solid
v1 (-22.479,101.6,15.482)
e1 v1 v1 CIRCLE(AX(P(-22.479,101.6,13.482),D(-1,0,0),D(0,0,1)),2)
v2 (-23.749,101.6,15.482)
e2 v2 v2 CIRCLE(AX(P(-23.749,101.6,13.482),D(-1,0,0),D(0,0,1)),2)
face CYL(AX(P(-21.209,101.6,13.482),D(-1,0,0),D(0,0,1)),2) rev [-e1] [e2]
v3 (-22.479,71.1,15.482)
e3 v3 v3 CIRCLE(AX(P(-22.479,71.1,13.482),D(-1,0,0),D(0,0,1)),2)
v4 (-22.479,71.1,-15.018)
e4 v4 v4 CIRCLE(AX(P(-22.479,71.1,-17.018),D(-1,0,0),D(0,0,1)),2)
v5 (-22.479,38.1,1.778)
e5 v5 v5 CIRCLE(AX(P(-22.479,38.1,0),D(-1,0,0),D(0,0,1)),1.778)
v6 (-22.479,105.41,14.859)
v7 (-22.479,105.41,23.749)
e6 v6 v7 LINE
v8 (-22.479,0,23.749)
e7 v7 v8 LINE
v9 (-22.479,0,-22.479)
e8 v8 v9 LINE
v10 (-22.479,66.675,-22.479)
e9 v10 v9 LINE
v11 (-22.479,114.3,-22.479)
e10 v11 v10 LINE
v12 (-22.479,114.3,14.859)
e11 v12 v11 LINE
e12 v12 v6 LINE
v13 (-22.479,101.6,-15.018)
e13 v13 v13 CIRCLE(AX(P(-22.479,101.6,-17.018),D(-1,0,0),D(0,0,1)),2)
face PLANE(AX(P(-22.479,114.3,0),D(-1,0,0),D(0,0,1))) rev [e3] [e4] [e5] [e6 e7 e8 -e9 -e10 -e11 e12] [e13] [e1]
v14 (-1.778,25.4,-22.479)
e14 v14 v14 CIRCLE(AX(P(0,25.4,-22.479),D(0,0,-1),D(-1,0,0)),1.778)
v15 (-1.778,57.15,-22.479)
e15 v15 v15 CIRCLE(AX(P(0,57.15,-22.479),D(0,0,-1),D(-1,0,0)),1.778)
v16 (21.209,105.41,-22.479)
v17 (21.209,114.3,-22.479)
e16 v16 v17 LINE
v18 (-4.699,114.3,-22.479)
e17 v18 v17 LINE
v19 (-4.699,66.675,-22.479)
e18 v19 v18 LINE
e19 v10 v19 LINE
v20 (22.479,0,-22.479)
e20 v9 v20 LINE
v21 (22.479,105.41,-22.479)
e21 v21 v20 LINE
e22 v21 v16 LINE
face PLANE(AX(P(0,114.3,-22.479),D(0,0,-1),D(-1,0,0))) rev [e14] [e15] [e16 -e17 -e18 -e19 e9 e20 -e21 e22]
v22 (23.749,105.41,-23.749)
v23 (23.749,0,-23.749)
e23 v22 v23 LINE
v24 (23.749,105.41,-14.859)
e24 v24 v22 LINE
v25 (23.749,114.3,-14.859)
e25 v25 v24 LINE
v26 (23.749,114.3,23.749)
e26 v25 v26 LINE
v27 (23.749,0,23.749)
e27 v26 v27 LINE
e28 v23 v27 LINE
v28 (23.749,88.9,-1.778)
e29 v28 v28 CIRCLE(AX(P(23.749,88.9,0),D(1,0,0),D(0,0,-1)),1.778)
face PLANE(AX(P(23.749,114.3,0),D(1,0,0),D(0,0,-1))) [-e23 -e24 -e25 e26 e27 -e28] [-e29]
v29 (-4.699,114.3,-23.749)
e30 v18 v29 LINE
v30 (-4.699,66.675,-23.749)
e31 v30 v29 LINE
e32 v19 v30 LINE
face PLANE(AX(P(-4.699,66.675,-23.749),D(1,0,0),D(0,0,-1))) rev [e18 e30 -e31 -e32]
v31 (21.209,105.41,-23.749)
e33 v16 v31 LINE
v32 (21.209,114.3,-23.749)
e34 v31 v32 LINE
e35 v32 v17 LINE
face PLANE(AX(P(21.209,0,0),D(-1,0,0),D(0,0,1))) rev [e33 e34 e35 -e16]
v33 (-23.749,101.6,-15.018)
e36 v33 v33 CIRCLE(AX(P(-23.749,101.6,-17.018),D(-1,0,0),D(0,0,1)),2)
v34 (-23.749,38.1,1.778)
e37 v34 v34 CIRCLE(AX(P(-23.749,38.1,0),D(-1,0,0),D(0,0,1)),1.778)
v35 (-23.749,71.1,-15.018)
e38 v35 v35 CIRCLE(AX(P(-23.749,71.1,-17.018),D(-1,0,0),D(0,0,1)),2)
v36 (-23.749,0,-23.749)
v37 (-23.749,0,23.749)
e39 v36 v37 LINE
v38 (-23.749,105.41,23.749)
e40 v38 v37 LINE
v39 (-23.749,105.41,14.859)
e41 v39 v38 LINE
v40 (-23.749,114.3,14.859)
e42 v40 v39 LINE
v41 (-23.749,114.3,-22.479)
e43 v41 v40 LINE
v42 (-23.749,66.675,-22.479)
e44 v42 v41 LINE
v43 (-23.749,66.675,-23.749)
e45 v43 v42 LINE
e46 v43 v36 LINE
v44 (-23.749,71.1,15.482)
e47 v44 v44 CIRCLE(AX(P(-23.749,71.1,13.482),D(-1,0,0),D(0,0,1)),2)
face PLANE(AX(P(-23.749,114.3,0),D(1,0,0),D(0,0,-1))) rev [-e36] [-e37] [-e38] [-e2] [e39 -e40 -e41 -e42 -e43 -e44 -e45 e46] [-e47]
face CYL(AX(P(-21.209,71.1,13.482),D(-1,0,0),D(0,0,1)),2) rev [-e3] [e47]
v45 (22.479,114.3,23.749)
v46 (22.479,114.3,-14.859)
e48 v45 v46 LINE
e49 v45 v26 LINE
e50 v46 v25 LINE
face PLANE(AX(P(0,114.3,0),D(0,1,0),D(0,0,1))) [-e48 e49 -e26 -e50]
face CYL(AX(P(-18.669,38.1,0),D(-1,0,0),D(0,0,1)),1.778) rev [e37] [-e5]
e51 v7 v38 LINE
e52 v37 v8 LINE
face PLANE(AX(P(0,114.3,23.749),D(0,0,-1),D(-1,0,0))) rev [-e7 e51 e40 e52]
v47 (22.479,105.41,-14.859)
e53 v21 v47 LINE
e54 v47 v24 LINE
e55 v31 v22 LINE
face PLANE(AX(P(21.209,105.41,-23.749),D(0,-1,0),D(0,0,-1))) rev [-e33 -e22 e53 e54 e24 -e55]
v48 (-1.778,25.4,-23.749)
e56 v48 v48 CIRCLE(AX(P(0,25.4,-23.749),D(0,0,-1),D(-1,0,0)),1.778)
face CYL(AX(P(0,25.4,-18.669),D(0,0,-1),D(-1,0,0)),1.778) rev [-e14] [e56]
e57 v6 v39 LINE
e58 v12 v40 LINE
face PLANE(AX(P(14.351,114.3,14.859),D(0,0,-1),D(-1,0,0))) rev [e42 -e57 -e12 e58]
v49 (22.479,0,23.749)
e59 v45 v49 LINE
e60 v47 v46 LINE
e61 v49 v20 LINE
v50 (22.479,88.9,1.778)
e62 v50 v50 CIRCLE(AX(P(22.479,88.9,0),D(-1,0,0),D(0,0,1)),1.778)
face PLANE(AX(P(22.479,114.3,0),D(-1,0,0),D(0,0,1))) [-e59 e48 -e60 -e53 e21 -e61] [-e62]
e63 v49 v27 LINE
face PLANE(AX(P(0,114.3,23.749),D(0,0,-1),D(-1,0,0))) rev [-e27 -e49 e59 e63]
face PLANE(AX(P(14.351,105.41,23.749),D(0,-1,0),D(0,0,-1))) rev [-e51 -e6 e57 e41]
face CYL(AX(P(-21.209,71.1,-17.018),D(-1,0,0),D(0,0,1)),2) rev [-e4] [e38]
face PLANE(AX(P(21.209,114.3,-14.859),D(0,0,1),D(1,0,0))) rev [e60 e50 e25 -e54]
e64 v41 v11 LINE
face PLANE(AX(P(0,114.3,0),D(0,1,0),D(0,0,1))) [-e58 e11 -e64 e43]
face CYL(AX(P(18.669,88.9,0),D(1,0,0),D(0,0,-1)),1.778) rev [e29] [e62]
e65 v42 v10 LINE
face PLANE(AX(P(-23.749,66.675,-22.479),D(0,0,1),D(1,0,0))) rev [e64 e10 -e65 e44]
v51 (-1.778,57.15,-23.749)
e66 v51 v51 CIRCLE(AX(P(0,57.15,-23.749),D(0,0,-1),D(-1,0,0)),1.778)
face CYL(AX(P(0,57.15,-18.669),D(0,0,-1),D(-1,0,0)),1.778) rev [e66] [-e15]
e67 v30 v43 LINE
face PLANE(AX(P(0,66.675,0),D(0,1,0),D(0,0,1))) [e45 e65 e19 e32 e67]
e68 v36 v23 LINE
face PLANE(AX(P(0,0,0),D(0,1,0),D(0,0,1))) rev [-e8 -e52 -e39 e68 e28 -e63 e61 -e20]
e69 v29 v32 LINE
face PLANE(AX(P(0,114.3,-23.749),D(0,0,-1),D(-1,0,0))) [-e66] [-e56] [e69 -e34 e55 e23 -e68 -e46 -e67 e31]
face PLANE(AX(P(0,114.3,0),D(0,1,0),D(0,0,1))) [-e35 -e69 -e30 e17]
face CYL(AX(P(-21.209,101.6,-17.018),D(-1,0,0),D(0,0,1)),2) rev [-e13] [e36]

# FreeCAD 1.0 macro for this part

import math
import FreeCAD as App
import Part
import Sketcher
from FreeCAD import Vector
Q = App.Units.Quantity

doc = App.newDocument("Part")
body = doc.addObject("PartDesign::Body", "Body")

# Sketch on XZ plane
sketch1 = doc.addObject("Sketcher::SketchObject", "Sketch")
body.addObject(sketch1)
sketch1.AttachmentSupport = (doc.XZ_Plane, [""])
sketch1.MapMode = "FlatFace"
sketch1.addGeometry([
    Part.LineSegment(Vector(23.7, -23.7, 0), Vector(-23.7, -23.7, 0)),  # 0
    Part.LineSegment(Vector(-23.7, -23.7, 0), Vector(-23.7, 23.7, 0)),  # 1
    Part.LineSegment(Vector(-23.7, 23.7, 0), Vector(-22.5, 23.7, 0)),  # 2
    Part.LineSegment(Vector(-22.5, 23.7, 0), Vector(-22.5, -22.5, 0)),  # 3
    Part.LineSegment(Vector(-22.5, -22.5, 0), Vector(22.5, -22.5, 0)),  # 4
    Part.LineSegment(Vector(22.5, -22.5, 0), Vector(22.5, 23.7, 0)),  # 5
    Part.LineSegment(Vector(22.5, 23.7, 0), Vector(23.7, 23.7, 0)),  # 6
    Part.LineSegment(Vector(23.7, 23.7, 0), Vector(23.7, -23.7, 0)),  # 7
], False)
sketch1.addConstraint([
    Sketcher.Constraint("Coincident", 0, 2, 1, 1),
    Sketcher.Constraint("Coincident", 1, 2, 2, 1),
    Sketcher.Constraint("Coincident", 2, 2, 3, 1),
    Sketcher.Constraint("Coincident", 3, 2, 4, 1),
    Sketcher.Constraint("Coincident", 4, 2, 5, 1),
    Sketcher.Constraint("Coincident", 5, 2, 6, 1),
    Sketcher.Constraint("Coincident", 6, 2, 7, 1),
    Sketcher.Constraint("Coincident", 7, 2, 0, 1),
    Sketcher.Constraint("Horizontal", 0),
    Sketcher.Constraint("Vertical", 1),
    Sketcher.Constraint("Horizontal", 2),
    Sketcher.Constraint("Vertical", 3),
    Sketcher.Constraint("Horizontal", 4),
    Sketcher.Constraint("Vertical", 5),
    Sketcher.Constraint("Horizontal", 6),
    Sketcher.Constraint("Vertical", 7),
    Sketcher.Constraint("Symmetric", 0, 2, 6, 2, -1, 1),
    Sketcher.Constraint("Symmetric", 2, 2, 5, 2, -2),
    Sketcher.Constraint("Equal", 0, 1),
    Sketcher.Constraint("DistanceX", 0, 2, 0, 1, Q("1.87 in")),
    Sketcher.Constraint("DistanceX", 2, 1, 2, 2, Q("0.05 in")),
    Sketcher.Constraint("DistanceY", 3, 2, 3, 1, Q("1.82 in")),
])
pad1 = doc.addObject("PartDesign::Pad", "Pad")
body.addObject(pad1)
pad1.Profile = sketch1
pad1.Length = Q("4.5 in")
pad1.Reversed = True

# Sketch on XY plane
sketch2 = doc.addObject("Sketcher::SketchObject", "Sketch001")
body.addObject(sketch2)
sketch2.AttachmentSupport = (doc.XY_Plane, [""])
sketch2.MapMode = "FlatFace"
sketch2.AttachmentOffset = App.Placement(Vector(0, 0, -0.935 * 25.4), App.Rotation())
sketch2.addGeometry(Part.Circle(Vector(0, 57.1, 0), Vector(0, 0, 1), 1.8), False)
sketch2.addConstraint([
    Sketcher.Constraint("PointOnObject", 0, 3, -2),
    Sketcher.Constraint("Diameter", 0, Q("0.14 in")),
    Sketcher.Constraint("DistanceY", -1, 1, 0, 3, Q("2.25 in")),
])
pocket1 = doc.addObject("PartDesign::Pocket", "Pocket")
body.addObject(pocket1)
pocket1.Profile = sketch2
pocket1.Length = Q("0.2 in")
pocket1.Reversed = True

# Sketch on YZ plane
sketch3 = doc.addObject("Sketcher::SketchObject", "Sketch002")
body.addObject(sketch3)
sketch3.AttachmentSupport = (doc.YZ_Plane, [""])
sketch3.MapMode = "FlatFace"
sketch3.AttachmentOffset = App.Placement(Vector(0, 0, -0.935 * 25.4), App.Rotation())
sketch3.addGeometry(Part.Circle(Vector(38.1, 0, 0), Vector(0, 0, 1), 1.8), False)
sketch3.addConstraint([
    Sketcher.Constraint("PointOnObject", 0, 3, -1),
    Sketcher.Constraint("Diameter", 0, Q("0.14 in")),
    Sketcher.Constraint("DistanceX", -1, 1, 0, 3, Q("1.5 in")),
])
pocket2 = doc.addObject("PartDesign::Pocket", "Pocket001")
body.addObject(pocket2)
pocket2.Profile = sketch3
pocket2.Length = Q("0.2 in")
pocket2.Reversed = True

# Sketch on YZ plane
sketch4 = doc.addObject("Sketcher::SketchObject", "Sketch003")
body.addObject(sketch4)
sketch4.AttachmentSupport = (doc.YZ_Plane, [""])
sketch4.MapMode = "FlatFace"
sketch4.AttachmentOffset = App.Placement(Vector(0, 0, 0.935 * 25.4), App.Rotation())
sketch4.addGeometry(Part.Circle(Vector(88.9, 0, 0), Vector(0, 0, 1), 1.8), False)
sketch4.addConstraint([
    Sketcher.Constraint("PointOnObject", 0, 3, -1),
    Sketcher.Constraint("Diameter", 0, Q("0.14 in")),
    Sketcher.Constraint("DistanceX", -1, 1, 0, 3, Q("3.5 in")),
])
pocket3 = doc.addObject("PartDesign::Pocket", "Pocket002")
body.addObject(pocket3)
pocket3.Profile = sketch4
pocket3.Length = Q("0.2 in")

# Sketch on XY plane
sketch5 = doc.addObject("Sketcher::SketchObject", "Sketch004")
body.addObject(sketch5)
sketch5.AttachmentSupport = (doc.XY_Plane, [""])
sketch5.MapMode = "FlatFace"
sketch5.AttachmentOffset = App.Placement(Vector(0, 0, -0.935 * 25.4), App.Rotation())
sketch5.addGeometry(Part.Circle(Vector(0, 25.4, 0), Vector(0, 0, 1), 1.8), False)
sketch5.addConstraint([
    Sketcher.Constraint("PointOnObject", 0, 3, -2),
    Sketcher.Constraint("Diameter", 0, Q("0.14 in")),
    Sketcher.Constraint("DistanceY", -1, 1, 0, 3, Q("1 in")),
])
pocket4 = doc.addObject("PartDesign::Pocket", "Pocket003")
body.addObject(pocket4)
pocket4.Profile = sketch5
pocket4.Length = Q("0.2 in")
pocket4.Reversed = True

# Sketch on YZ plane
sketch6 = doc.addObject("Sketcher::SketchObject", "Sketch005")
body.addObject(sketch6)
sketch6.AttachmentSupport = (doc.YZ_Plane, [""])
sketch6.MapMode = "FlatFace"
sketch6.AttachmentOffset = App.Placement(Vector(0, 0, -0.935 * 25.4), App.Rotation())
sketch6.addGeometry([
    Part.ArcOfCircle(Part.Circle(Vector(101.6, -17, 0), Vector(0, 0, 1), 2), math.radians(180), math.radians(450)),  # 0
    Part.ArcOfCircle(Part.Circle(Vector(101.6, -17, 0), Vector(0, 0, 1), 2), math.radians(90), math.radians(180)),  # 1
    Part.ArcOfCircle(Part.Circle(Vector(101.6, 13.5, 0), Vector(0, 0, 1), 2), math.radians(-90), math.radians(90)),  # 2
    Part.ArcOfCircle(Part.Circle(Vector(101.6, 13.5, 0), Vector(0, 0, 1), 2), math.radians(-180), math.radians(-90)),  # 3
    Part.ArcOfCircle(Part.Circle(Vector(101.6, 13.5, 0), Vector(0, 0, 1), 2), math.radians(90), math.radians(180)),  # 4
    Part.ArcOfCircle(Part.Circle(Vector(71.1, 13.5, 0), Vector(0, 0, 1), 2), math.radians(0), math.radians(90)),  # 5
    Part.ArcOfCircle(Part.Circle(Vector(71.1, 13.5, 0), Vector(0, 0, 1), 2), math.radians(-90), math.radians(0)),  # 6
    Part.ArcOfCircle(Part.Circle(Vector(71.1, 13.5, 0), Vector(0, 0, 1), 2), math.radians(90), math.radians(270)),  # 7
    Part.ArcOfCircle(Part.Circle(Vector(71.1, -17, 0), Vector(0, 0, 1), 2), math.radians(0), math.radians(90)),  # 8
    Part.ArcOfCircle(Part.Circle(Vector(71.1, -17, 0), Vector(0, 0, 1), 2), math.radians(90), math.radians(360)),  # 9
], False)
sketch6.addConstraint([
    Sketcher.Constraint("Tangent", 0, 1, 1, 2),
    Sketcher.Constraint("Coincident", 1, 1, 0, 2),
    Sketcher.Constraint("Tangent", 2, 1, 3, 2),
    Sketcher.Constraint("Tangent", 3, 1, 4, 2),
    Sketcher.Constraint("Tangent", 4, 1, 2, 2),
    Sketcher.Constraint("Tangent", 5, 1, 6, 2),
    Sketcher.Constraint("Tangent", 6, 1, 7, 2),
    Sketcher.Constraint("Tangent", 7, 1, 5, 2),
    Sketcher.Constraint("Tangent", 8, 1, 9, 2),
    Sketcher.Constraint("Coincident", 9, 1, 8, 2),
    Sketcher.Constraint("Equal", 1, 2),
    Sketcher.Constraint("Equal", 4, 5),
    Sketcher.Constraint("Equal", 7, 8),
    Sketcher.Constraint("Horizontal", 4, 3, 5, 3),
    Sketcher.Constraint("Horizontal", 1, 3, 8, 3),
    Sketcher.Constraint("Horizontal", 9, 3, 0, 1),
    Sketcher.Constraint("Horizontal", 7, 3, 3, 1),
    Sketcher.Constraint("Horizontal", 3, 1, 5, 1),
    Sketcher.Constraint("Horizontal", 0, 1, 8, 1),
    Sketcher.Constraint("Vertical", 1, 3, 2, 3),
    Sketcher.Constraint("Vertical", 7, 3, 8, 3),
    Sketcher.Constraint("Vertical", 4, 3, 1, 1),
    Sketcher.Constraint("Vertical", 1, 1, 2, 1),
    Sketcher.Constraint("Vertical", 2, 1, 4, 1),
    Sketcher.Constraint("Vertical", 9, 3, 6, 1),
    Sketcher.Constraint("Vertical", 6, 1, 7, 1),
    Sketcher.Constraint("Vertical", 7, 1, 9, 1),
    Sketcher.Constraint("DistanceX", -1, 1, 0, 3, Q("4 in")),
    Sketcher.Constraint("DistanceY", 0, 3, -1, 1, Q("0.67 in")),
    Sketcher.Constraint("Radius", 0, 2.0),
    Sketcher.Constraint("DistanceY", -1, 1, 2, 3, 13.482),
    Sketcher.Constraint("DistanceX", -1, 1, 5, 3, 71.1),
])
pocket5 = doc.addObject("PartDesign::Pocket", "Pocket004")
body.addObject(pocket5)
pocket5.Profile = sketch6
pocket5.Length = Q("0.1 in")
pocket5.Reversed = True

# Sketch on XZ plane
sketch7 = doc.addObject("Sketcher::SketchObject", "Sketch006")
body.addObject(sketch7)
sketch7.AttachmentSupport = (doc.XZ_Plane, [""])
sketch7.MapMode = "FlatFace"
sketch7.AttachmentOffset = App.Placement(Vector(0, 0, -4.5 * 25.4), App.Rotation())
sketch7.addGeometry([
    Part.LineSegment(Vector(-23.7, -23.7, 0), Vector(-23.7, -22.5, 0)),
    Part.LineSegment(Vector(-23.7, -22.5, 0), Vector(-4.7, -22.5, 0)),
    Part.LineSegment(Vector(-4.7, -22.5, 0), Vector(-4.7, -23.7, 0)),
    Part.LineSegment(Vector(-4.7, -23.7, 0), Vector(-23.7, -23.7, 0)),
], False)
sketch7.addConstraint([
    Sketcher.Constraint("Coincident", 0, 2, 1, 1),
    Sketcher.Constraint("Coincident", 1, 2, 2, 1),
    Sketcher.Constraint("Coincident", 2, 2, 3, 1),
    Sketcher.Constraint("Coincident", 3, 2, 0, 1),
    Sketcher.Constraint("Vertical", 0),
    Sketcher.Constraint("Horizontal", 1),
    Sketcher.Constraint("Vertical", 2),
    Sketcher.Constraint("Horizontal", 3),
    Sketcher.Constraint("DistanceX", 1, 1, 1, 2, Q("0.75 in")),
    Sketcher.Constraint("DistanceY", 0, 1, 0, 2, Q("0.05 in")),
    Sketcher.Constraint("DistanceX", 0, 2, -1, 1, Q("0.935 in")),
    Sketcher.Constraint("DistanceY", 0, 2, -1, 1, Q("0.885 in")),
])
pocket6 = doc.addObject("PartDesign::Pocket", "Pocket005")
body.addObject(pocket6)
pocket6.Profile = sketch7
pocket6.Length = Q("1.875 in")
pocket6.Reversed = True

# Sketch on YZ plane
sketch8 = doc.addObject("Sketcher::SketchObject", "Sketch007")
body.addObject(sketch8)
sketch8.AttachmentSupport = (doc.YZ_Plane, [""])
sketch8.MapMode = "FlatFace"
sketch8.AttachmentOffset = App.Placement(Vector(0, 0, -0.935 * 25.4), App.Rotation())
sketch8.addGeometry([
    Part.LineSegment(Vector(114, 15, 0), Vector(105, 15, 0)),
    Part.LineSegment(Vector(105, 15, 0), Vector(105, 24, 0)),
    Part.LineSegment(Vector(105, 24, 0), Vector(114, 24, 0)),
    Part.LineSegment(Vector(114, 24, 0), Vector(114, 15, 0)),
], False)
sketch8.addConstraint([
    Sketcher.Constraint("Coincident", 0, 2, 1, 1),
    Sketcher.Constraint("Coincident", 1, 2, 2, 1),
    Sketcher.Constraint("Coincident", 2, 2, 3, 1),
    Sketcher.Constraint("Coincident", 3, 2, 0, 1),
    Sketcher.Constraint("Horizontal", 0),
    Sketcher.Constraint("Vertical", 1),
    Sketcher.Constraint("Horizontal", 2),
    Sketcher.Constraint("Vertical", 3),
    Sketcher.Constraint("Equal", 2, 1),
    Sketcher.Constraint("DistanceX", 0, 2, 0, 1, Q("0.35 in")),
    Sketcher.Constraint("DistanceX", -1, 1, 2, 2, Q("4.5 in")),
    Sketcher.Constraint("DistanceY", -1, 1, 0, 2, Q("0.585 in")),
])
pocket7 = doc.addObject("PartDesign::Pocket", "Pocket006")
body.addObject(pocket7)
pocket7.Profile = sketch8
pocket7.Length = Q("1.5 in")
pocket7.Reversed = True

# Sketch on YZ plane
sketch9 = doc.addObject("Sketcher::SketchObject", "Sketch008")
body.addObject(sketch9)
sketch9.AttachmentSupport = (doc.YZ_Plane, [""])
sketch9.MapMode = "FlatFace"
sketch9.AttachmentOffset = App.Placement(Vector(0, 0, 0.935 * 25.4), App.Rotation())
sketch9.addGeometry([
    Part.LineSegment(Vector(114, -15, 0), Vector(105, -15, 0)),
    Part.LineSegment(Vector(105, -15, 0), Vector(105, -24, 0)),
    Part.LineSegment(Vector(105, -24, 0), Vector(114, -24, 0)),
    Part.LineSegment(Vector(114, -24, 0), Vector(114, -15, 0)),
], False)
sketch9.addConstraint([
    Sketcher.Constraint("Coincident", 0, 2, 1, 1),
    Sketcher.Constraint("Coincident", 1, 2, 2, 1),
    Sketcher.Constraint("Coincident", 2, 2, 3, 1),
    Sketcher.Constraint("Coincident", 3, 2, 0, 1),
    Sketcher.Constraint("Horizontal", 0),
    Sketcher.Constraint("Vertical", 1),
    Sketcher.Constraint("Horizontal", 2),
    Sketcher.Constraint("Vertical", 3),
    Sketcher.Constraint("Equal", 2, 1),
    Sketcher.Constraint("DistanceX", 0, 2, 0, 1, Q("0.35 in")),
    Sketcher.Constraint("DistanceX", -1, 1, 2, 2, Q("4.5 in")),
    Sketcher.Constraint("DistanceY", 0, 2, -1, 1, Q("0.585 in")),
])
pocket8 = doc.addObject("PartDesign::Pocket", "Pocket007")
body.addObject(pocket8)
pocket8.Profile = sketch9
pocket8.Length = Q("0.1 in")

doc.recompute()
